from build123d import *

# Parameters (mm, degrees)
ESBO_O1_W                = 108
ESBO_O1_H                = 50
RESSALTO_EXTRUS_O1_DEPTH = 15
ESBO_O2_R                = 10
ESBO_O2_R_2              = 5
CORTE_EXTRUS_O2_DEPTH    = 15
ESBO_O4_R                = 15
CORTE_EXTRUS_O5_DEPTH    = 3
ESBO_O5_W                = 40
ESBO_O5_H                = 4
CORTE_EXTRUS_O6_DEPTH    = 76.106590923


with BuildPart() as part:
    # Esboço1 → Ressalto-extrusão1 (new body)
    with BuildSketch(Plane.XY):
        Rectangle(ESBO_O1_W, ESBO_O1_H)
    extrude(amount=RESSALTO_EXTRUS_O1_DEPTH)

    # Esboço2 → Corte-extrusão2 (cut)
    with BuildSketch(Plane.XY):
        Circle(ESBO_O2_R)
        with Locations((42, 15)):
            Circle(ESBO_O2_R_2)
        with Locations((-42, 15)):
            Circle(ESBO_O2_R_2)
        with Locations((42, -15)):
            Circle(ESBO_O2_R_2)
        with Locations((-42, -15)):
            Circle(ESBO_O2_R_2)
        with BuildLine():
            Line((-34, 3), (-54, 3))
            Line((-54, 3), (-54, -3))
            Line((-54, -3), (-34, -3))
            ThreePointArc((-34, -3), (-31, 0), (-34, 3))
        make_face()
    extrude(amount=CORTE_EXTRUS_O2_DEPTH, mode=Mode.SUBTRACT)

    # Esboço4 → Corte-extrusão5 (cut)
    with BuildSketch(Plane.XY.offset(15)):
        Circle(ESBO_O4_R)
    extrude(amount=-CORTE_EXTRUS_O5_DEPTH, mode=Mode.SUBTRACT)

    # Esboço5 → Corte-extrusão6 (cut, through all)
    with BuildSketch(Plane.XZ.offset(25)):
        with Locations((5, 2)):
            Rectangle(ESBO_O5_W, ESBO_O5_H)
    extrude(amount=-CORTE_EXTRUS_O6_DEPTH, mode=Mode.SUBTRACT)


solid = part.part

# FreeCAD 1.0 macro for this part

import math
import FreeCAD as App
import Part
import Sketcher
Q = App.Units.Quantity

doc = App.newDocument("Part")
body = doc.addObject("PartDesign::Body", "Body")

# Sketch on XY plane
sketch1 = doc.addObject("Sketcher::SketchObject", "Sketch")
body.addObject(sketch1)
sketch1.AttachmentSupport = (doc.XY_Plane, [""])
sketch1.MapMode = "FlatFace"
sketch1.addGeometry([
    Part.LineSegment(App.Vector(-54, 25, 0), App.Vector(-54, -25, 0)),
    Part.LineSegment(App.Vector(-54, -25, 0), App.Vector(54, -25, 0)),
    Part.LineSegment(App.Vector(54, -25, 0), App.Vector(54, 25, 0)),
    Part.LineSegment(App.Vector(54, 25, 0), App.Vector(-54, 25, 0)),
], False)
sketch1.addConstraint([
    Sketcher.Constraint("Coincident", 0, 2, 1, 1),
    Sketcher.Constraint("Coincident", 1, 2, 2, 1),
    Sketcher.Constraint("Coincident", 2, 2, 3, 1),
    Sketcher.Constraint("Coincident", 3, 2, 0, 1),
    Sketcher.Constraint("Vertical", 0),
    Sketcher.Constraint("Horizontal", 1),
    Sketcher.Constraint("Vertical", 2),
    Sketcher.Constraint("Horizontal", 3),
    Sketcher.Constraint("Symmetric", 0, 2, 2, 2, -1, 1),
    Sketcher.Constraint("DistanceX", 1, 1, 1, 2, Q("108 mm")),
    Sketcher.Constraint("DistanceY", 0, 2, 0, 1, Q("50 mm")),
])
pad1 = doc.addObject("PartDesign::Pad", "Pad")
body.addObject(pad1)
pad1.Profile = sketch1
pad1.Length = 15

# Sketch on XY plane
sketch2 = doc.addObject("Sketcher::SketchObject", "Sketch001")
body.addObject(sketch2)
sketch2.AttachmentSupport = (doc.XY_Plane, [""])
sketch2.MapMode = "FlatFace"
sketch2.addGeometry([
    Part.Circle(App.Vector(0, 0, 0), App.Vector(0, 0, 1), 10),  # 0
    Part.Circle(App.Vector(42, 15, 0), App.Vector(0, 0, 1), 5),  # 1
    Part.Circle(App.Vector(-42, 15, 0), App.Vector(0, 0, 1), 5),  # 2
    Part.Circle(App.Vector(42, -15, 0), App.Vector(0, 0, 1), 5),  # 3
    Part.Circle(App.Vector(-42, -15, 0), App.Vector(0, 0, 1), 5),  # 4
    Part.LineSegment(App.Vector(-34, 3, 0), App.Vector(-54, 3, 0)),  # 5
    Part.LineSegment(App.Vector(-54, 3, 0), App.Vector(-54, -3, 0)),  # 6
    Part.LineSegment(App.Vector(-54, -3, 0), App.Vector(-34, -3, 0)),  # 7
    Part.ArcOfCircle(Part.Circle(App.Vector(-34, 0, 0), App.Vector(0, 0, 1), 3), math.radians(-90), math.radians(90)),  # 8
], False)
sketch2.addConstraint([
    Sketcher.Constraint("Coincident", 5, 2, 6, 1),
    Sketcher.Constraint("Coincident", 6, 2, 7, 1),
    Sketcher.Constraint("Tangent", 7, 2, 8, 1),
    Sketcher.Constraint("Tangent", 8, 2, 5, 1),
    Sketcher.Constraint("Horizontal", 5),
    Sketcher.Constraint("Vertical", 6),
    Sketcher.Constraint("Horizontal", 7),
    Sketcher.Constraint("Coincident", 0, 3, -1, 1),
    Sketcher.Constraint("Equal", 1, 2),
    Sketcher.Constraint("Equal", 2, 3),
    Sketcher.Constraint("Equal", 3, 4),
    Sketcher.Constraint("Symmetric", 2, 3, 3, 3, -1, 1),
    Sketcher.Constraint("Symmetric", 1, 3, 4, 3, -1, 1),
    Sketcher.Constraint("Symmetric", 1, 3, 2, 3, -2),
    Sketcher.Constraint("PointOnObject", 8, 3, -1),
    Sketcher.Constraint("Diameter", 0, Q("20 mm")),
    Sketcher.Constraint("Diameter", 1, Q("10 mm")),
    Sketcher.Constraint("Radius", 8, Q("3 mm")),
    Sketcher.Constraint("DistanceX", 5, 2, 5, 1, Q("20 mm")),
    Sketcher.Constraint("DistanceX", -1, 1, 1, 3, Q("42 mm")),
    Sketcher.Constraint("DistanceY", -1, 1, 1, 3, Q("15 mm")),
    Sketcher.Constraint("DistanceX", 8, 3, -1, 1, Q("34 mm")),
])
pocket1 = doc.addObject("PartDesign::Pocket", "Pocket")
body.addObject(pocket1)
pocket1.Profile = sketch2
pocket1.Length = 15
pocket1.Reversed = True

# Sketch on XY plane
sketch3 = doc.addObject("Sketcher::SketchObject", "Sketch002")
body.addObject(sketch3)
sketch3.AttachmentSupport = (doc.XY_Plane, [""])
sketch3.MapMode = "FlatFace"
sketch3.AttachmentOffset = App.Placement(App.Vector(0, 0, 15), App.Rotation())
sketch3.addGeometry(Part.Circle(App.Vector(0, 0, 0), App.Vector(0, 0, 1), 15), False)
sketch3.addConstraint([
    Sketcher.Constraint("Coincident", 0, 3, -1, 1),
    Sketcher.Constraint("Diameter", 0, Q("30 mm")),
])
pocket2 = doc.addObject("PartDesign::Pocket", "Pocket001")
body.addObject(pocket2)
pocket2.Profile = sketch3
pocket2.Length = 3

# Sketch on XZ plane
sketch4 = doc.addObject("Sketcher::SketchObject", "Sketch003")
body.addObject(sketch4)
sketch4.AttachmentSupport = (doc.XZ_Plane, [""])
sketch4.MapMode = "FlatFace"
sketch4.AttachmentOffset = App.Placement(App.Vector(0, 0, 25), App.Rotation())
sketch4.addGeometry([
    Part.LineSegment(App.Vector(-15, 4, 0), App.Vector(-15, 0, 0)),
    Part.LineSegment(App.Vector(-15, 0, 0), App.Vector(25, 0, 0)),
    Part.LineSegment(App.Vector(25, 0, 0), App.Vector(25, 4, 0)),
    Part.LineSegment(App.Vector(25, 4, 0), App.Vector(-15, 4, 0)),
], False)
sketch4.addConstraint([
    Sketcher.Constraint("Coincident", 0, 2, 1, 1),
    Sketcher.Constraint("Coincident", 1, 2, 2, 1),
    Sketcher.Constraint("Coincident", 2, 2, 3, 1),
    Sketcher.Constraint("Coincident", 3, 2, 0, 1),
    Sketcher.Constraint("Vertical", 0),
    Sketcher.Constraint("Horizontal", 1),
    Sketcher.Constraint("Vertical", 2),
    Sketcher.Constraint("Horizontal", 3),
    Sketcher.Constraint("PointOnObject", 0, 2, -1),
    Sketcher.Constraint("DistanceX", 1, 1, 1, 2, Q("40 mm")),
    Sketcher.Constraint("DistanceY", 0, 2, 0, 1, Q("4 mm")),
    Sketcher.Constraint("DistanceX", 0, 2, -1, 1, Q("15 mm")),
])
pocket3 = doc.addObject("PartDesign::Pocket", "Pocket002")
body.addObject(pocket3)
pocket3.Profile = sketch4
pocket3.Type = "ThroughAll"

doc.recompute()
